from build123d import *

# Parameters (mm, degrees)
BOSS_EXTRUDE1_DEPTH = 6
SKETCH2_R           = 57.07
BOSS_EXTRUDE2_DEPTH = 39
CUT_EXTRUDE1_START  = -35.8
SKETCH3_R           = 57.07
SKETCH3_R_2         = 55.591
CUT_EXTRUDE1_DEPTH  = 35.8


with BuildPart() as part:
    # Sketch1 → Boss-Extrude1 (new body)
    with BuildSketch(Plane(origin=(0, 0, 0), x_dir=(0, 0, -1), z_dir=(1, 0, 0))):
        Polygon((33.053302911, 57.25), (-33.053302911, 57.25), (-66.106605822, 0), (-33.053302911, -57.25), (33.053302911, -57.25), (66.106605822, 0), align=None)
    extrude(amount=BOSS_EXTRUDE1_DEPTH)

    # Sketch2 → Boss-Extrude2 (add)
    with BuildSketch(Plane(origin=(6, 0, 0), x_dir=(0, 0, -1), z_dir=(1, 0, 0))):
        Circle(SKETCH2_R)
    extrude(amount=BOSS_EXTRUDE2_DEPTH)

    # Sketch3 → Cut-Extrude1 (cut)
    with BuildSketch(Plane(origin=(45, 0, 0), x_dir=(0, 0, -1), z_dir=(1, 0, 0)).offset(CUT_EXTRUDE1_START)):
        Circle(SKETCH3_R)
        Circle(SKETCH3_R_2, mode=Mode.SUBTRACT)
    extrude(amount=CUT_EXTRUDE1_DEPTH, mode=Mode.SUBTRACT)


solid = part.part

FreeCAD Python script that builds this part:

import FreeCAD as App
import Part
import Sketcher

V = App.Vector
Q = App.Units.Quantity


def add_polygon(sketch, points):
    """Adds a closed chain of lines whose ends are joined by coincident constraints."""
    first, n = sketch.GeometryCount, len(points)
    for a, b in zip(points, points[1:] + points[:1]):
        sketch.addGeometry(Part.LineSegment(App.Vector(*a, 0), App.Vector(*b, 0)), False)
    for i in range(n):
        sketch.addConstraint(Sketcher.Constraint("Coincident", first + i, 2, first + (i + 1) % n, 1))

doc = App.newDocument("Part")
body = doc.addObject("PartDesign::Body", "Body")

# Sketch on YZ plane
sketch1 = body.newObject("Sketcher::SketchObject", "Sketch")
sketch1.AttachmentSupport = (doc.getObject("YZ_Plane"), [""])
sketch1.MapMode = "FlatFace"
add_polygon(sketch1, [(57.25, -33.053303), (57.25, 33.053303), (0, 66.106606), (-57.25, 33.053303), (-57.25, -33.053303), (0, -66.106606)])  # lines 0-5
sketch1.addConstraint([
    Sketcher.Constraint("Vertical", 0),
    Sketcher.Constraint("Vertical", 3),
    Sketcher.Constraint("Symmetric", 0, 2, 3, 2, -1, 1),
    Sketcher.Constraint("Symmetric", 1, 2, 4, 2, -1, 1),
    Sketcher.Constraint("PointOnObject", 1, 2, -2),
    Sketcher.Constraint("Parallel", 2, 5),
    Sketcher.Constraint("Horizontal", 0, 2, 2, 2),
    Sketcher.Constraint("Angle", 1, Q("150 deg")),
    Sketcher.Constraint("DistanceX", 2, 2, 0, 2, Q("114.5 mm")),
    Sketcher.Constraint("DistanceY", 0, 1, 0, 2, Q("66.106606 mm")),
])
pad1 = body.newObject("PartDesign::Pad", "Pad")
pad1.Profile = sketch1
pad1.Length = 6

# Sketch on YZ plane
sketch2 = body.newObject("Sketcher::SketchObject", "Sketch001")
sketch2.AttachmentSupport = (doc.getObject("YZ_Plane"), [""])
sketch2.MapMode = "FlatFace"
sketch2.AttachmentOffset = App.Placement(V(0, 0, 6), App.Rotation())
sketch2.addGeometry(Part.Circle(V(0, 0, 0), V(0, 0, 1), 57.07), False)
sketch2.addConstraint([
    Sketcher.Constraint("Coincident", 0, 3, -1, 1),
    Sketcher.Constraint("Diameter", 0, Q("114.14 mm")),
])
pad2 = body.newObject("PartDesign::Pad", "Pad001")
pad2.Profile = sketch2
pad2.Length = 39

# Sketch on YZ plane
sketch3 = body.newObject("Sketcher::SketchObject", "Sketch002")
sketch3.AttachmentSupport = (doc.getObject("YZ_Plane"), [""])
sketch3.MapMode = "FlatFace"
sketch3.AttachmentOffset = App.Placement(V(0, 0, 9.2), App.Rotation())
sketch3.addGeometry([
    Part.Circle(V(0, 0, 0), V(0, 0, 1), 57.07),
    Part.Circle(V(0, 0, 0), V(0, 0, 1), 55.591),
], False)
sketch3.addConstraint([
    Sketcher.Constraint("Coincident", 0, 3, -1, 1),
    Sketcher.Constraint("Coincident", 1, 3, -1, 1),
    Sketcher.Constraint("Diameter", 0, Q("114.14 mm")),
    Sketcher.Constraint("Diameter", 1, Q("111.182 mm")),
])
pocket1 = body.newObject("PartDesign::Pocket", "Pocket")
pocket1.Profile = sketch3
pocket1.Length = 35.8
pocket1.Reversed = True

doc.recompute()
